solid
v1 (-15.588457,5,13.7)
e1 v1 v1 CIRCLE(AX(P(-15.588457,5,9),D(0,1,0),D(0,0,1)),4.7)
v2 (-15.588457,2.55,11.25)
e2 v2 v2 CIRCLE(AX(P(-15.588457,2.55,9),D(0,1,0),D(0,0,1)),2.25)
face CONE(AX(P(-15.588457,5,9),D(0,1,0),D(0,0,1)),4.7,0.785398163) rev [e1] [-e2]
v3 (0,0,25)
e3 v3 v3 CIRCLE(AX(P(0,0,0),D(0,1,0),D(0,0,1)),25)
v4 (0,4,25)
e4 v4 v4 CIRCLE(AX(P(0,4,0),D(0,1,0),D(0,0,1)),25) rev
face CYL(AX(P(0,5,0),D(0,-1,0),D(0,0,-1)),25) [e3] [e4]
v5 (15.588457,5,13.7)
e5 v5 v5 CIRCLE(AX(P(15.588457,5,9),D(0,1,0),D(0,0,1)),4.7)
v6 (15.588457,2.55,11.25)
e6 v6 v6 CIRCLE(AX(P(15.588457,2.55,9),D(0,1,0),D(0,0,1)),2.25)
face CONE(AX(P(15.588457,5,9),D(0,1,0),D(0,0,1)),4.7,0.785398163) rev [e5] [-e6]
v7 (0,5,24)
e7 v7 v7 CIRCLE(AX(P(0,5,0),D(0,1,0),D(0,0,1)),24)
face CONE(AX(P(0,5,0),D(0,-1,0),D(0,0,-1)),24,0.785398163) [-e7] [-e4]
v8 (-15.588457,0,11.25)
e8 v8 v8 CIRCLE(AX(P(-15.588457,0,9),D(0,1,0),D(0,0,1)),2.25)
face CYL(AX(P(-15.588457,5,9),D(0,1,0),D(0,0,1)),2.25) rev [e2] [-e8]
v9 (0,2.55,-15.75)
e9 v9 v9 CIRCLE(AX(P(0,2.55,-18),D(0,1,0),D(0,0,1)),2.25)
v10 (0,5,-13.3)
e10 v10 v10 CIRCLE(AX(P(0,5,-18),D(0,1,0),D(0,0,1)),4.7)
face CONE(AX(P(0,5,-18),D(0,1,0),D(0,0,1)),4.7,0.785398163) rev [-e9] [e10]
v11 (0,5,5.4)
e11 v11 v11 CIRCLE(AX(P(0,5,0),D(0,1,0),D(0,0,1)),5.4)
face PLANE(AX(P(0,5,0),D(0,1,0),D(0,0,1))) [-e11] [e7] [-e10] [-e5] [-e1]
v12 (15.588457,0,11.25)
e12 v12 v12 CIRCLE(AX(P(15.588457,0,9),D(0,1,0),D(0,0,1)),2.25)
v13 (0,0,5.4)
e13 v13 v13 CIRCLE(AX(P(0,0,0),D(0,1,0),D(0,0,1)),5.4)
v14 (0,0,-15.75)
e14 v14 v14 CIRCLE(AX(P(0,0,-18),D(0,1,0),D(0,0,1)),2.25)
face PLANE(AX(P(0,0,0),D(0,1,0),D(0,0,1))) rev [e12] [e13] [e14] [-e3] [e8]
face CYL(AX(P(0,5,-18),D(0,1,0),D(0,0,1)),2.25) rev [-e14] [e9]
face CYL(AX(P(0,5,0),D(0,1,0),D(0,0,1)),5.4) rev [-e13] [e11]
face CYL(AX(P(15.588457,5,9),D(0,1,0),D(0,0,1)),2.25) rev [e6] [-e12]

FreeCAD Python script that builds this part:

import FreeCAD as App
import Part
import Sketcher
from FreeCAD import Vector
Q = App.Units.Quantity


def edges_at(feature, points):
    """Names of the edges that pass closest to the given points."""
    edges = feature.Shape.Edges
    near = lambda p: min(range(len(edges)), key=lambda i: edges[i].distToShape(Part.Vertex(*p))[0])
    return sorted({f"Edge{near(p) + 1}" for p in points})

doc = App.newDocument("Part")
params = doc.addObject("Spreadsheet::Sheet", "Params")
for row, (alias, value) in enumerate([
    ("sketch1_diameter", "50 mm"),
    ("pad1_length", "5 mm"),
    ("chamfer_size", "1 mm"),
    ("sketch2_diameter", "4.5 mm"),
    ("hole_diameter", "4.5 mm"),
    ("hole_csink_diameter", "9.4 mm"),
    ("sketch3_diameter", "10.8 mm"),
    ("hole2_diameter", "10.8 mm"),
    ("sketch4_diameter", "10.8 mm"),
    ("hole3_diameter", "10.8 mm"),
], start=1):
    params.set(f"A{row}", alias)
    params.set(f"B{row}", "=" + value)
    params.setAlias(f"B{row}", alias)

body = doc.addObject("PartDesign::Body", "Body")

# Sketch on XZ plane
sketch1 = body.newObject("Sketcher::SketchObject", "Sketch")
sketch1.AttachmentSupport = (doc.getObject("XZ_Plane"), [""])
sketch1.MapMode = "FlatFace"
sketch1.addGeometry(Part.Circle(Vector(0, 0, 0), Vector(0, 0, 1), 25), False)
sketch1.addConstraint([
    Sketcher.Constraint("Coincident", 0, 3, -1, 1),
    Sketcher.Constraint("Diameter", 0, Q("50 mm")),
])
sketch1.setExpression("Constraints[1]", "Params.sketch1_diameter")
pad1 = body.newObject("PartDesign::Pad", "Pad")
pad1.Profile = sketch1
pad1.setExpression("Length", "Params.pad1_length")
pad1.Reversed = True
doc.recompute()

chamfer = body.newObject("PartDesign::Chamfer", "Chamfer")
chamfer.Base = (pad1, edges_at(pad1, [(0, 5, -25)]))
chamfer.setExpression("Size", "Params.chamfer_size")

# Sketch on XZ plane
sketch2 = body.newObject("Sketcher::SketchObject", "Sketch001")
sketch2.AttachmentSupport = (doc.getObject("XZ_Plane"), [""])
sketch2.MapMode = "FlatFace"
sketch2.AttachmentOffset = App.Placement(Vector(0, 0, -5), App.Rotation())
sketch2.addGeometry(Part.Circle(Vector(0, -18, 0), Vector(0, 0, 1), 2.2), False)
sketch2.addConstraint([
    Sketcher.Constraint("PointOnObject", 0, 3, -2),
    Sketcher.Constraint("Diameter", 0, Q("4.5 mm")),
    Sketcher.Constraint("DistanceY", 0, 3, -1, 1, Q("18 mm")),
])
sketch2.setExpression("Constraints[1]", "Params.sketch2_diameter")
doc.recompute()
hole = body.newObject("PartDesign::Hole", "Hole")
hole.Profile = sketch2
hole.ThreadType = "None"
hole.setExpression("Diameter", "Params.hole_diameter")
hole.DepthType = "ThroughAll"
hole.HoleCutType = "Countersink"
hole.setExpression("HoleCutDiameter", "Params.hole_csink_diameter")
hole.HoleCutCountersinkAngle = 90
hole.Reversed = True

# Sketch on XZ plane
sketch3 = body.newObject("Sketcher::SketchObject", "Sketch002")
sketch3.AttachmentSupport = (doc.getObject("XZ_Plane"), [""])
sketch3.MapMode = "FlatFace"
sketch3.addGeometry(Part.Circle(Vector(0, 0, 0), Vector(0, 0, 1), 5), False)
sketch3.addConstraint([
    Sketcher.Constraint("Coincident", 0, 3, -1, 1),
    Sketcher.Constraint("Diameter", 0, Q("10.8 mm")),
])
sketch3.setExpression("Constraints[1]", "Params.sketch3_diameter")
doc.recompute()
hole2 = body.newObject("PartDesign::Hole", "Hole001")
hole2.Profile = sketch3
hole2.ThreadType = "None"
hole2.setExpression("Diameter", "Params.hole2_diameter")
hole2.DepthType = "ThroughAll"

# Sketch on XZ plane
sketch4 = body.newObject("Sketcher::SketchObject", "Sketch003")
sketch4.AttachmentSupport = (doc.getObject("XZ_Plane"), [""])
sketch4.MapMode = "FlatFace"
sketch4.AttachmentOffset = App.Placement(Vector(0, 0, -5), App.Rotation())
sketch4.addGeometry(Part.Circle(Vector(0, 0, 0), Vector(0, 0, 1), 5), False)
sketch4.addConstraint([
    Sketcher.Constraint("Coincident", 0, 3, -1, 1),
    Sketcher.Constraint("Diameter", 0, Q("10.8 mm")),
])
sketch4.setExpression("Constraints[1]", "Params.sketch4_diameter")
doc.recompute()
hole3 = body.newObject("PartDesign::Hole", "Hole002")
hole3.Profile = sketch4
hole3.ThreadType = "None"
hole3.setExpression("Diameter", "Params.hole3_diameter")
hole3.DepthType = "ThroughAll"
hole3.Reversed = True
doc.recompute()

polarpattern = body.newObject("PartDesign::PolarPattern", "PolarPattern")
polarpattern.Originals = [hole]
polarpattern.Axis = (doc.getObject("Y_Axis"), [""])
polarpattern.Angle = 360
polarpattern.Occurrences = 3
body.Tip = polarpattern

doc.recompute()
